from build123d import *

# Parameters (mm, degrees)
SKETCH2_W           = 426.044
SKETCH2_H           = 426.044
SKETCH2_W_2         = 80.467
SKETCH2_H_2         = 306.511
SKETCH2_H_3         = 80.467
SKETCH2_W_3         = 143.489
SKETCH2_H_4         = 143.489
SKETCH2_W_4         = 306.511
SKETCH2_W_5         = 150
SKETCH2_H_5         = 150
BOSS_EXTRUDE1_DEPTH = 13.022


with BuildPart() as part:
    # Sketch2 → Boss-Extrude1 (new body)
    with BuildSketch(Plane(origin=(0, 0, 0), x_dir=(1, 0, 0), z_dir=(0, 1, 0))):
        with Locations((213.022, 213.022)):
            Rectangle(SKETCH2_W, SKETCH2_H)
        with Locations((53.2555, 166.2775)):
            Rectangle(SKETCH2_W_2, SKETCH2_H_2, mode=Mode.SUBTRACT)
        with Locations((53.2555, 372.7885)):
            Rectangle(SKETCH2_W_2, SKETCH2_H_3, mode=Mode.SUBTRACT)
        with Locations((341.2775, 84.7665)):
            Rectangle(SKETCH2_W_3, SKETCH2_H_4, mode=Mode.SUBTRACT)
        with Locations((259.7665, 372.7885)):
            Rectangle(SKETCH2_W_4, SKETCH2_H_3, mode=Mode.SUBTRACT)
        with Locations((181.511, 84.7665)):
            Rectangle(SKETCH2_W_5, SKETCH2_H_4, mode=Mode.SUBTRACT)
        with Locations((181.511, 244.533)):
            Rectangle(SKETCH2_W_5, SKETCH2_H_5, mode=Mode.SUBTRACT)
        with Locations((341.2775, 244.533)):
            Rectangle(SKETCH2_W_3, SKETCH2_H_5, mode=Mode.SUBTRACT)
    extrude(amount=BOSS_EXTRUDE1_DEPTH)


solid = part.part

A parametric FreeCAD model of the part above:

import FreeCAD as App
import Part
import Sketcher
Q = App.Units.Quantity


def add_polygon(sketch, points):
    """Adds a closed chain of lines whose ends are joined by coincident constraints."""
    first, n = sketch.GeometryCount, len(points)
    for a, b in zip(points, points[1:] + points[:1]):
        sketch.addGeometry(Part.LineSegment(App.Vector(*a, 0), App.Vector(*b, 0)), False)
    for i in range(n):
        sketch.addConstraint(Sketcher.Constraint("Coincident", first + i, 2, first + (i + 1) % n, 1))

doc = App.newDocument("Part")
body = doc.addObject("PartDesign::Body", "Body")

sketch1 = body.newObject("Sketcher::SketchObject", "Sketch")
sketch1.AttachmentSupport = (doc.getObject("XZ_Plane"), [""])
sketch1.MapMode = "FlatFace"
add_polygon(sketch1, [(0, -426), (0, 0), (426, 0), (426, -426)])
add_polygon(sketch1, [(257, -13), (107, -13), (107, -157), (257, -157)])
add_polygon(sketch1, [(93, -13), (13, -13), (13, -320), (93, -320)])
add_polygon(sketch1, [(413, -13), (270, -13), (270, -157), (413, -157)])
add_polygon(sketch1, [(257, -170), (107, -170), (107, -320), (257, -320)])
add_polygon(sketch1, [(93, -333), (13, -333), (13, -413), (93, -413)])
add_polygon(sketch1, [(413, -170), (270, -170), (270, -320), (413, -320)])
add_polygon(sketch1, [(413, -333), (107, -333), (107, -413), (413, -413)])
sketch1.addConstraint(Sketcher.Constraint("Vertical", 0))
sketch1.addConstraint(Sketcher.Constraint("Horizontal", 1))
sketch1.addConstraint(Sketcher.Constraint("Vertical", 2))
sketch1.addConstraint(Sketcher.Constraint("Horizontal", 3))
sketch1.addConstraint(Sketcher.Constraint("Horizontal", 4))
sketch1.addConstraint(Sketcher.Constraint("Vertical", 5))
sketch1.addConstraint(Sketcher.Constraint("Horizontal", 6))
sketch1.addConstraint(Sketcher.Constraint("Vertical", 7))
sketch1.addConstraint(Sketcher.Constraint("Horizontal", 8))
sketch1.addConstraint(Sketcher.Constraint("Vertical", 9))
sketch1.addConstraint(Sketcher.Constraint("Horizontal", 10))
sketch1.addConstraint(Sketcher.Constraint("Vertical", 11))
sketch1.addConstraint(Sketcher.Constraint("Horizontal", 12))
sketch1.addConstraint(Sketcher.Constraint("Vertical", 13))
sketch1.addConstraint(Sketcher.Constraint("Horizontal", 14))
sketch1.addConstraint(Sketcher.Constraint("Vertical", 15))
sketch1.addConstraint(Sketcher.Constraint("Horizontal", 16))
sketch1.addConstraint(Sketcher.Constraint("Vertical", 17))
sketch1.addConstraint(Sketcher.Constraint("Horizontal", 18))
sketch1.addConstraint(Sketcher.Constraint("Vertical", 19))
sketch1.addConstraint(Sketcher.Constraint("Horizontal", 20))
sketch1.addConstraint(Sketcher.Constraint("Vertical", 21))
sketch1.addConstraint(Sketcher.Constraint("Horizontal", 22))
sketch1.addConstraint(Sketcher.Constraint("Vertical", 23))
sketch1.addConstraint(Sketcher.Constraint("Horizontal", 24))
sketch1.addConstraint(Sketcher.Constraint("Vertical", 25))
sketch1.addConstraint(Sketcher.Constraint("Horizontal", 26))
sketch1.addConstraint(Sketcher.Constraint("Vertical", 27))
sketch1.addConstraint(Sketcher.Constraint("Horizontal", 28))
sketch1.addConstraint(Sketcher.Constraint("Vertical", 29))
sketch1.addConstraint(Sketcher.Constraint("Horizontal", 30))
sketch1.addConstraint(Sketcher.Constraint("Vertical", 31))
sketch1.addConstraint(Sketcher.Constraint("Coincident", 0, 2, -1, 1))
sketch1.addConstraint(Sketcher.Constraint("Horizontal", 7, 2, 8, 2))
sketch1.addConstraint(Sketcher.Constraint("Horizontal", 11, 2, 12, 2))
sketch1.addConstraint(Sketcher.Constraint("Horizontal", 6, 2, 13, 2))
sketch1.addConstraint(Sketcher.Constraint("Horizontal", 10, 2, 17, 2))
sketch1.addConstraint(Sketcher.Constraint("Horizontal", 19, 2, 24, 2))
sketch1.addConstraint(Sketcher.Constraint("Horizontal", 18, 2, 25, 2))
sketch1.addConstraint(Sketcher.Constraint("Horizontal", 23, 2, 28, 2))
sketch1.addConstraint(Sketcher.Constraint("Horizontal", 22, 2, 29, 2))
sketch1.addConstraint(Sketcher.Constraint("Vertical", 5, 2, 16, 2))
sketch1.addConstraint(Sketcher.Constraint("Vertical", 7, 2, 18, 2))
sketch1.addConstraint(Sketcher.Constraint("Vertical", 9, 2, 20, 2))
sketch1.addConstraint(Sketcher.Constraint("Vertical", 11, 2, 22, 2))
sketch1.addConstraint(Sketcher.Constraint("Vertical", 13, 2, 24, 2))
sketch1.addConstraint(Sketcher.Constraint("Vertical", 15, 2, 26, 2))
sketch1.addConstraint(Sketcher.Constraint("Vertical", 17, 2, 28, 2))
sketch1.addConstraint(Sketcher.Constraint("Vertical", 27, 2, 30, 2))
sketch1.addConstraint(Sketcher.Constraint("Equal", 3, 0))
sketch1.addConstraint(Sketcher.Constraint("Equal", 26, 5))
sketch1.addConstraint(Sketcher.Constraint("Equal", 30, 9))
sketch1.addConstraint(Sketcher.Constraint("Equal", 18, 17))
sketch1.addConstraint(Sketcher.Constraint("Equal", 22, 21))
sketch1.addConstraint(Sketcher.Constraint("DistanceX", 4, 2, 4, 1, Q("150 mm")))
sketch1.addConstraint(Sketcher.Constraint("DistanceX", 1, 1, 1, 2, Q("426.044 mm")))
sketch1.addConstraint(Sketcher.Constraint("DistanceX", 8, 2, 8, 1, Q("80.467 mm")))
sketch1.addConstraint(Sketcher.Constraint("DistanceX", 12, 2, 12, 1, Q("143.489 mm")))
sketch1.addConstraint(Sketcher.Constraint("DistanceX", 28, 2, 28, 1, Q("306.511 mm")))
sketch1.addConstraint(Sketcher.Constraint("DistanceX", -1, 1, 4, 2, Q("106.511 mm")))
sketch1.addConstraint(Sketcher.Constraint("DistanceY", 4, 2, -1, 1, Q("13.022 mm")))
sketch1.addConstraint(Sketcher.Constraint("DistanceX", -1, 1, 8, 2, Q("13.022 mm")))
sketch1.addConstraint(Sketcher.Constraint("DistanceY", 20, 2, -1, 1, Q("332.555 mm")))
pad1 = body.newObject("PartDesign::Pad", "Pad")
pad1.Profile = sketch1
pad1.Length = 13.022
pad1.Reversed = True

doc.recompute()
